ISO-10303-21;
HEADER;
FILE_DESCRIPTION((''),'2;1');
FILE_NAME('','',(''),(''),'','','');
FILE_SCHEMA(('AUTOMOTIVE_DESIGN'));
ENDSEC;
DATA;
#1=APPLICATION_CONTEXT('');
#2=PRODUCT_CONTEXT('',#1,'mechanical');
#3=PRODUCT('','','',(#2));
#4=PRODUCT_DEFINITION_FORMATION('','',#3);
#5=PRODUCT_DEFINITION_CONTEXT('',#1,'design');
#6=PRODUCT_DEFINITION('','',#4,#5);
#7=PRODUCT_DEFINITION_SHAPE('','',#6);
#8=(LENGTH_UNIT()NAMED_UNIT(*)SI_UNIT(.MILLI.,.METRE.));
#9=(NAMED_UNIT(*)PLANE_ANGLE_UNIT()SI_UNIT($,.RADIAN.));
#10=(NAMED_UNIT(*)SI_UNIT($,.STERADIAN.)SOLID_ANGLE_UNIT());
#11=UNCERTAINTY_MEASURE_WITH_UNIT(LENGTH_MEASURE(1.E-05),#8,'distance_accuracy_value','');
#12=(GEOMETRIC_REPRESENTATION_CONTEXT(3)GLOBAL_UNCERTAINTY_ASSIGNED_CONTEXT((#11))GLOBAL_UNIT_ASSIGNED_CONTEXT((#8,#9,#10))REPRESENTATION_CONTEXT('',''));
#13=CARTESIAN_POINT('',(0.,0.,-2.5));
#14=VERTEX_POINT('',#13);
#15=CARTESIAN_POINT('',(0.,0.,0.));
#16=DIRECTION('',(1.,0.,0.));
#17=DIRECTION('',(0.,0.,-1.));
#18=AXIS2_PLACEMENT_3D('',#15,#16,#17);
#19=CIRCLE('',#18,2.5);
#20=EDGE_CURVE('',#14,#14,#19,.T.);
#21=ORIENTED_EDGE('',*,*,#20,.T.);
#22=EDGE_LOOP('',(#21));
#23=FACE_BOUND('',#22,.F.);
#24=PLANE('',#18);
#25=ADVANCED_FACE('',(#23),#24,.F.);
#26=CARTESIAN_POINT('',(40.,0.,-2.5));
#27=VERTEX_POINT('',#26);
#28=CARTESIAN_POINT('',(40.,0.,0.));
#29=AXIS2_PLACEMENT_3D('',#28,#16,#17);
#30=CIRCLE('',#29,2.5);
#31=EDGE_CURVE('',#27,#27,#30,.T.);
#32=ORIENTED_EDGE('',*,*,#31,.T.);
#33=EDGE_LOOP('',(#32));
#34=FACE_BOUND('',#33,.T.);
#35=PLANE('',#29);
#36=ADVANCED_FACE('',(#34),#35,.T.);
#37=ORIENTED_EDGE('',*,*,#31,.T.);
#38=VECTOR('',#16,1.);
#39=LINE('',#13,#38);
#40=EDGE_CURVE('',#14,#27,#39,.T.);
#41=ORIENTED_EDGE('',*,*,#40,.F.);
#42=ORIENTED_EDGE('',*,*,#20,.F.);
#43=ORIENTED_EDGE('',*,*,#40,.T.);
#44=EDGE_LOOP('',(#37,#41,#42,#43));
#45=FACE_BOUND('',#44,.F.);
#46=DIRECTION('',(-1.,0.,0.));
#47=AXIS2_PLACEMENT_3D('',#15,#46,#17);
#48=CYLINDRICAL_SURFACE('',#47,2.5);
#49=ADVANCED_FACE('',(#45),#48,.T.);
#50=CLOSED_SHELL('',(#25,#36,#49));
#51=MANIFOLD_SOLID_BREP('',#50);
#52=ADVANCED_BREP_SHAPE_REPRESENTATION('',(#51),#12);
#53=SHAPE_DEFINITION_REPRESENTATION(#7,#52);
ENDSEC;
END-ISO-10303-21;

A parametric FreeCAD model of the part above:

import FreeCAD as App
import Part
import Sketcher

V = App.Vector
Q = App.Units.Quantity

doc = App.newDocument("Part")
body = doc.addObject("PartDesign::Body", "Body")

# Sketch on YZ plane
sketch1 = body.newObject("Sketcher::SketchObject", "Sketch")
sketch1.AttachmentSupport = (doc.getObject("YZ_Plane"), [""])
sketch1.MapMode = "FlatFace"
sketch1.addGeometry(Part.Circle(V(0, 0, 0), V(0, 0, 1), 2.5), False)
sketch1.addConstraint(Sketcher.Constraint("Coincident", 0, 3, -1, 1))
sketch1.addConstraint(Sketcher.Constraint("Diameter", 0, Q("5 mm")))
pad1 = body.newObject("PartDesign::Pad", "Pad")
pad1.Profile = sketch1
pad1.Length = 40

doc.recompute()
